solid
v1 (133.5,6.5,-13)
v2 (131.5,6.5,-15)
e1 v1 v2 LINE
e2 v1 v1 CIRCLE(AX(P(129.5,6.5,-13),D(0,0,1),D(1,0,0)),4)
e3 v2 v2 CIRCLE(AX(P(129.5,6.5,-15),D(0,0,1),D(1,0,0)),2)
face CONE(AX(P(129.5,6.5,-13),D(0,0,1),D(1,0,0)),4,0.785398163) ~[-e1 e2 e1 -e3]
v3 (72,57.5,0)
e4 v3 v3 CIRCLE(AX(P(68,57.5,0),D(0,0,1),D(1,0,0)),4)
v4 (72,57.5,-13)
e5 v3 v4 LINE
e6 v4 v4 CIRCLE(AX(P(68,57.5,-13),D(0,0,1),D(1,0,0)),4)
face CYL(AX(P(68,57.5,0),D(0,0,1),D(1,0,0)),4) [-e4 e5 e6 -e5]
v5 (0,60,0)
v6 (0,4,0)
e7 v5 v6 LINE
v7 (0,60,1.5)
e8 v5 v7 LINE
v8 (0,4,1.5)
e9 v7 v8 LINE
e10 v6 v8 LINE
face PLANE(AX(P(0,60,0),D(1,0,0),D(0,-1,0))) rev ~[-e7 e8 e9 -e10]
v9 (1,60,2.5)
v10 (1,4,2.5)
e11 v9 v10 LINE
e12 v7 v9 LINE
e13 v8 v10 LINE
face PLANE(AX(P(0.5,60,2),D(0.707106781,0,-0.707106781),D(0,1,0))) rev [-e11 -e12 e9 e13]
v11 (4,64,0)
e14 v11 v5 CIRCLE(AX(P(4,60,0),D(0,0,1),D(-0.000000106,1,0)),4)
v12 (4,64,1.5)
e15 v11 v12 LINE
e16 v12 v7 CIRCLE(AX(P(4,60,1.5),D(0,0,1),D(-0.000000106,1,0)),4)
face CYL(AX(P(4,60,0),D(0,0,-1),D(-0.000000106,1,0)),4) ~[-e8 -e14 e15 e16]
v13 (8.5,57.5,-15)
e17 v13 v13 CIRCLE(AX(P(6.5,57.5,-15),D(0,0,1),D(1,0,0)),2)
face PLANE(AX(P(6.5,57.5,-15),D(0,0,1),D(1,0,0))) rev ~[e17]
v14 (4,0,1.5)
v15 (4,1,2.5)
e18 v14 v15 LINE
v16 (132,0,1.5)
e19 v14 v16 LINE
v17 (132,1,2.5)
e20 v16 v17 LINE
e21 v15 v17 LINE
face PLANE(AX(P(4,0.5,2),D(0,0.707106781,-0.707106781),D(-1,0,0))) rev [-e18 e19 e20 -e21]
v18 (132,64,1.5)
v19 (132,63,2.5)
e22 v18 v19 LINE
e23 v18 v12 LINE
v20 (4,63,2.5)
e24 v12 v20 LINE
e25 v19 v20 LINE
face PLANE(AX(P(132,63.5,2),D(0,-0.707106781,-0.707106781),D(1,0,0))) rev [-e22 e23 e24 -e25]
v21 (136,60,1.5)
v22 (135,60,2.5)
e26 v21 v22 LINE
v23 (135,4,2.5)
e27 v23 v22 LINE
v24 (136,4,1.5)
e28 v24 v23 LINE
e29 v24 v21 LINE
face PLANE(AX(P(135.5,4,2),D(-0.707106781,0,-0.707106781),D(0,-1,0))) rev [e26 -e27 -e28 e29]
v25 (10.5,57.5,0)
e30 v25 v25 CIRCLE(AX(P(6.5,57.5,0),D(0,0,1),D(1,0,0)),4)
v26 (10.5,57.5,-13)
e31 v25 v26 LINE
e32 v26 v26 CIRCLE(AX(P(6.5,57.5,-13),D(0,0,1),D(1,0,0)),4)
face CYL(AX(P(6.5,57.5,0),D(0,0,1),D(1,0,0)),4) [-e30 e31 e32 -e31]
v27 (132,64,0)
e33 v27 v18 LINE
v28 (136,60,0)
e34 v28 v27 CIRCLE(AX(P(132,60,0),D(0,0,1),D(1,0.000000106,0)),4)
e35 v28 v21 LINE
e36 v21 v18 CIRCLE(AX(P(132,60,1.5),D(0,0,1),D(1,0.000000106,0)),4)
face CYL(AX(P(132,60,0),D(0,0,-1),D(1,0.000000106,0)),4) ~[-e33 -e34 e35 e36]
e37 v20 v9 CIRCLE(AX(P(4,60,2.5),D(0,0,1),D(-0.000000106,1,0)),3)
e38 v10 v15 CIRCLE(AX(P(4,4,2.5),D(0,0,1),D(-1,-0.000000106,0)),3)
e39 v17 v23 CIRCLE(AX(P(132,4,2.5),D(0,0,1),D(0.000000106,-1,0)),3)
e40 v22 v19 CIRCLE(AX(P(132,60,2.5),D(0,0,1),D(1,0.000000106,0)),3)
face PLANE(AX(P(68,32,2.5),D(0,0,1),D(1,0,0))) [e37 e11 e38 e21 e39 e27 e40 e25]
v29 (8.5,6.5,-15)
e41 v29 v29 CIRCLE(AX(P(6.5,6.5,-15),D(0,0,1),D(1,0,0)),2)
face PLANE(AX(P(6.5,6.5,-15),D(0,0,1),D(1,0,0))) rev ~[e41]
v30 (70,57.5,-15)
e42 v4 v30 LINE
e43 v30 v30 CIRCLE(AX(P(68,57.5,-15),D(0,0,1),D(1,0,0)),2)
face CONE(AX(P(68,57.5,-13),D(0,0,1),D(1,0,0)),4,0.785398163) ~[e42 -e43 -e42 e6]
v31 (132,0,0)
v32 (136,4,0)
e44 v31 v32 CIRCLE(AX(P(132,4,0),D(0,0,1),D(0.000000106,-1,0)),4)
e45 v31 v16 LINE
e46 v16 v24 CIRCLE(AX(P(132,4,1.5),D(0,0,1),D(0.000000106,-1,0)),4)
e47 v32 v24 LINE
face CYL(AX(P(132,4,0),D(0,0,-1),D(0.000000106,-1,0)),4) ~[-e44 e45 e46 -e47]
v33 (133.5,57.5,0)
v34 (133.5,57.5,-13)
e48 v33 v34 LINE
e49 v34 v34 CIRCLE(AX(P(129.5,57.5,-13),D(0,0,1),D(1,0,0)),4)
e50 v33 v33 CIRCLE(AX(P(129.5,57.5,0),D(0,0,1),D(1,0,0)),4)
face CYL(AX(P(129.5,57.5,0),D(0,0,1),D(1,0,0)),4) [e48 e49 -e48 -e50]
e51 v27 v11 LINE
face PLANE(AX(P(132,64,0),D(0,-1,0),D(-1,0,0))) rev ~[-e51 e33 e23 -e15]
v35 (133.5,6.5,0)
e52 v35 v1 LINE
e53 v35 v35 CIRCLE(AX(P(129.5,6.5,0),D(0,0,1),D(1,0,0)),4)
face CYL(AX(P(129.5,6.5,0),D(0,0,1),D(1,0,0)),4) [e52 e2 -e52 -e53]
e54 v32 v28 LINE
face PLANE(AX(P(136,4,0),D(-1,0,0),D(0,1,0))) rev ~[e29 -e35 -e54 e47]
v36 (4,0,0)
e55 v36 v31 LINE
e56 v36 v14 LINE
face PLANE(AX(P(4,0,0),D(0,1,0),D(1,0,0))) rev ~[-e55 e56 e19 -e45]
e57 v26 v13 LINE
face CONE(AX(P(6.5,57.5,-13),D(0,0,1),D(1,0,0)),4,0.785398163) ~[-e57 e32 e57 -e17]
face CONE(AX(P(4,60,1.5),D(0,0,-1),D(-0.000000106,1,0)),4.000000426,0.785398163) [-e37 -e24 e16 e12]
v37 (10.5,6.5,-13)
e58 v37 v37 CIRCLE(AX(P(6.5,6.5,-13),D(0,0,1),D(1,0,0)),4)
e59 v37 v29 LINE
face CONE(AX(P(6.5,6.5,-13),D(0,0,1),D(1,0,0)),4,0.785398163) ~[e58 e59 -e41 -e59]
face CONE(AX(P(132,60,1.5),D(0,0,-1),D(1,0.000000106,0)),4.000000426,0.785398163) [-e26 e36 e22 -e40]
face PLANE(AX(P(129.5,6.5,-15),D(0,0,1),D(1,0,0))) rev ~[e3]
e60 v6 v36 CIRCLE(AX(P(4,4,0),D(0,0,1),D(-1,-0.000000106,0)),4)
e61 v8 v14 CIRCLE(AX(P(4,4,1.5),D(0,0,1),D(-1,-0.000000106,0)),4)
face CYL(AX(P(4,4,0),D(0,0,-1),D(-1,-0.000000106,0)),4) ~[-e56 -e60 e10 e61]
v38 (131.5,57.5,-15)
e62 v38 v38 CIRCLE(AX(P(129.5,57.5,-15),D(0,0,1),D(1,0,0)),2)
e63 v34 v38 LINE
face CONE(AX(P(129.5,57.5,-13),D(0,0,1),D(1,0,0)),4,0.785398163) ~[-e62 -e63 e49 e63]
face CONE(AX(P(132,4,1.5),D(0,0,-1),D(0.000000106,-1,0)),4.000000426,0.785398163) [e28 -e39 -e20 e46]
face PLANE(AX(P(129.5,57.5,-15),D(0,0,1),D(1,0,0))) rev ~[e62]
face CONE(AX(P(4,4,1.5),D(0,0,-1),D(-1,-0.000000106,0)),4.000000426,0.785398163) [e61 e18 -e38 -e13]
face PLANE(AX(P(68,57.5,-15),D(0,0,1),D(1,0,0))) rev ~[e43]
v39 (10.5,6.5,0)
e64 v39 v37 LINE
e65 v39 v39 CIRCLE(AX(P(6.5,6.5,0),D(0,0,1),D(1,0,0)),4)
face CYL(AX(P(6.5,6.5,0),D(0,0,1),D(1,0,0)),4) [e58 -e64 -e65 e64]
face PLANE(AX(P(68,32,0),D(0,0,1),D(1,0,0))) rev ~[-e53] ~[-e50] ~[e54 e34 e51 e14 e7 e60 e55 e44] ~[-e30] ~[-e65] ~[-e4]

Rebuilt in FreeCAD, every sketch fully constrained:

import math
import FreeCAD as App
import Part
import Sketcher

V = App.Vector


def edges_at(feature, points):
    """Names of the edges that pass closest to the given points."""
    edges = feature.Shape.Edges
    near = lambda p: min(range(len(edges)), key=lambda i: edges[i].distToShape(Part.Vertex(*p))[0])
    return sorted({f"Edge{near(p) + 1}" for p in points})

doc = App.newDocument("Part")
body = doc.addObject("PartDesign::Body", "Body")

# Sketch on XY plane
sketch1 = body.newObject("Sketcher::SketchObject", "Sketch")
sketch1.AttachmentSupport = (doc.getObject("XY_Plane"), [""])
sketch1.MapMode = "FlatFace"
sketch1.addGeometry([
    Part.LineSegment(V(4, 0, 0), V(132, 0, 0)),  # 0
    Part.ArcOfCircle(Part.Circle(V(132, 4, 0), V(0, 0, 1), 4), math.radians(-90), math.radians(0)),  # 1
    Part.LineSegment(V(136, 4, 0), V(136, 60, 0)),  # 2
    Part.ArcOfCircle(Part.Circle(V(132, 60, 0), V(0, 0, 1), 4), math.radians(0), math.radians(90)),  # 3
    Part.LineSegment(V(132, 64, 0), V(4, 64, 0)),  # 4
    Part.ArcOfCircle(Part.Circle(V(4, 60, 0), V(0, 0, 1), 4), math.radians(90), math.radians(180)),  # 5
    Part.LineSegment(V(0, 60, 0), V(0, 4, 0)),  # 6
    Part.ArcOfCircle(Part.Circle(V(4, 4, 0), V(0, 0, 1), 4), math.radians(-180), math.radians(-90)),  # 7
], False)
sketch1.addConstraint([
    Sketcher.Constraint("Tangent", 0, 2, 1, 1),
    Sketcher.Constraint("Tangent", 1, 2, 2, 1),
    Sketcher.Constraint("Tangent", 2, 2, 3, 1),
    Sketcher.Constraint("Tangent", 3, 2, 4, 1),
    Sketcher.Constraint("Tangent", 4, 2, 5, 1),
    Sketcher.Constraint("Tangent", 5, 2, 6, 1),
    Sketcher.Constraint("Tangent", 6, 2, 7, 1),
    Sketcher.Constraint("Tangent", 7, 2, 0, 1),
    Sketcher.Constraint("Horizontal", 0),
    Sketcher.Constraint("Vertical", 2),
    Sketcher.Constraint("Horizontal", 4),
    Sketcher.Constraint("Vertical", 6),
    Sketcher.Constraint("Equal", 1, 3),
    Sketcher.Constraint("Equal", 3, 5),
    Sketcher.Constraint("Equal", 5, 7),
    Sketcher.Constraint("PointOnObject", 0, 2, -1),
    Sketcher.Constraint("PointOnObject", 5, 2, -2),
    Sketcher.Constraint("Radius", 1, 4.0),
    Sketcher.Constraint("DistanceX", 0, 1, 0, 2, 128.0),
    Sketcher.Constraint("DistanceY", 2, 1, 2, 2, 56.0),
])
pad1 = body.newObject("PartDesign::Pad", "Pad")
pad1.Profile = sketch1
pad1.Length = 2.5

# Sketch on XY plane
sketch2 = body.newObject("Sketcher::SketchObject", "Sketch001")
sketch2.AttachmentSupport = (doc.getObject("XY_Plane"), [""])
sketch2.MapMode = "FlatFace"
sketch2.addGeometry([
    Part.Circle(V(6.5, 6.5, 0), V(0, 0, 1), 4),  # 0
    Part.Circle(V(129.5, 6.5, 0), V(0, 0, 1), 4),  # 1
    Part.Circle(V(129.5, 57.5, 0), V(0, 0, 1), 4),  # 2
    Part.Circle(V(6.5, 57.5, 0), V(0, 0, 1), 4),  # 3
    Part.Circle(V(68, 57.5, 0), V(0, 0, 1), 4),  # 4
], False)
sketch2.addConstraint([
    Sketcher.Constraint("Equal", 0, 1),
    Sketcher.Constraint("Equal", 1, 2),
    Sketcher.Constraint("Equal", 2, 3),
    Sketcher.Constraint("Equal", 3, 4),
    Sketcher.Constraint("Horizontal", 0, 3, 1, 3),
    Sketcher.Constraint("Horizontal", 2, 3, 3, 3),
    Sketcher.Constraint("Horizontal", 3, 3, 4, 3),
    Sketcher.Constraint("Vertical", 1, 3, 2, 3),
    Sketcher.Constraint("Vertical", 0, 3, 3, 3),
    Sketcher.Constraint("Diameter", 0, 8.0),
    Sketcher.Constraint("DistanceX", -1, 1, 4, 3, 68.0),
    Sketcher.Constraint("DistanceX", 0, 3, 1, 3, 123.0),
    Sketcher.Constraint("DistanceY", 1, 3, 2, 3, 51.0),
    Sketcher.Constraint("DistanceX", -1, 1, 0, 3, 6.5),
    Sketcher.Constraint("DistanceY", -1, 1, 0, 3, 6.5),
])
pad2 = body.newObject("PartDesign::Pad", "Pad001")
pad2.Profile = sketch2
pad2.Length = 15
pad2.Reversed = True
doc.recompute()

chamfer = body.newObject("PartDesign::Chamfer", "Chamfer")
chamfer.Base = (pad2, edges_at(pad2, [
    (68, 0, 2.5),
    (134.828, 1.172, 2.5),
    (136, 32, 2.5),
    (134.828, 62.828, 2.5),
    (68, 64, 2.5),
    (1.172, 62.828, 2.5),
    (0, 32, 2.5),
    (1.172, 1.172, 2.5),
]))
chamfer.Size = 1
doc.recompute()

chamfer2 = body.newObject("PartDesign::Chamfer", "Chamfer001")
chamfer2.Base = (chamfer, edges_at(chamfer, [
    (2.5, 6.5, -15),
    (2.5, 57.5, -15),
    (64, 57.5, -15),
    (125.5, 57.5, -15),
    (125.5, 6.5, -15),
]))
chamfer2.Size = 2

doc.recompute()
